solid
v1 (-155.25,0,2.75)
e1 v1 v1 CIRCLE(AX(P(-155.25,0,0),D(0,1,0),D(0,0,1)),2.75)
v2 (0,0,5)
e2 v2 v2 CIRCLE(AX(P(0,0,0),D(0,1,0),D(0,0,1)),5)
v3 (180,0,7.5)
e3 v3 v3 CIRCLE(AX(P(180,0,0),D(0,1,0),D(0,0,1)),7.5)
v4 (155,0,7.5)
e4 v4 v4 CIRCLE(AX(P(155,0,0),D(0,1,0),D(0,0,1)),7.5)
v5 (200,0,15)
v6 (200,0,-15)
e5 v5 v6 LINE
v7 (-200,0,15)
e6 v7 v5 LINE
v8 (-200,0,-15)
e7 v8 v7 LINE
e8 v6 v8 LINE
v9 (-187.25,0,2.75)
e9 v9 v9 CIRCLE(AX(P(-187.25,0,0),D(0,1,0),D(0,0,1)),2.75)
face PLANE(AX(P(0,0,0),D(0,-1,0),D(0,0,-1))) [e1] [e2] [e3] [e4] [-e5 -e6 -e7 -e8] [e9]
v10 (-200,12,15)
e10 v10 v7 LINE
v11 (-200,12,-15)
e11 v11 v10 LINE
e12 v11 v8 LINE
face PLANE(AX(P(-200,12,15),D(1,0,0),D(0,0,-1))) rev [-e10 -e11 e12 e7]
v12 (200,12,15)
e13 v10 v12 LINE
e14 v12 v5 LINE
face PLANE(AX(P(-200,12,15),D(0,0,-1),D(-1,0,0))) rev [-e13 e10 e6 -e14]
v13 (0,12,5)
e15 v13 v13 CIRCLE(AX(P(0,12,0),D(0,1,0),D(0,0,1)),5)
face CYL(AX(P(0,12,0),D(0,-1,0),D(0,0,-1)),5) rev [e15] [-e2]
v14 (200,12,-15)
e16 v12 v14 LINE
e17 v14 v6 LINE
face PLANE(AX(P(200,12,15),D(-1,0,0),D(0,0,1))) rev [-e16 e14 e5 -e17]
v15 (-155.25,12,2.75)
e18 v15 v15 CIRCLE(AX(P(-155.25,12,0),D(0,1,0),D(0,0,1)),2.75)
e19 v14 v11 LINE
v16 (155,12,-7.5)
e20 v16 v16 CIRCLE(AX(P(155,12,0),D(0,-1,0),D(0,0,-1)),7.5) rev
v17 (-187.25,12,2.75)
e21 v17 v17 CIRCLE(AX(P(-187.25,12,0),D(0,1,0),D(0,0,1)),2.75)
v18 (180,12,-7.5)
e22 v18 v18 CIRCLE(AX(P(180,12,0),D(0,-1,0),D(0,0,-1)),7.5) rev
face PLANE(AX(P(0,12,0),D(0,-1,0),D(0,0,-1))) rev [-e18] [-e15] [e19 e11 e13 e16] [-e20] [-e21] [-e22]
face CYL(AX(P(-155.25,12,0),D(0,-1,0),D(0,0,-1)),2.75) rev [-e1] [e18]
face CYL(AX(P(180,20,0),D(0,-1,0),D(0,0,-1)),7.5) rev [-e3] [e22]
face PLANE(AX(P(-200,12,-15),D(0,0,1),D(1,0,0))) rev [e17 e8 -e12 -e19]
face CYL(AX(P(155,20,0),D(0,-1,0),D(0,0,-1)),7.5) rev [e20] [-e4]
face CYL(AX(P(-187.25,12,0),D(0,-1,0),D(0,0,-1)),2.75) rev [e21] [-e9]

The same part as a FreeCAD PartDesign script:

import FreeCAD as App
import Part
import Sketcher

V = App.Vector
Q = App.Units.Quantity

doc = App.newDocument("Part")
body = doc.addObject("PartDesign::Body", "Body")

# Sketch on XZ plane
sketch1 = body.newObject("Sketcher::SketchObject", "Sketch")
sketch1.AttachmentSupport = (doc.getObject("XZ_Plane"), [""])
sketch1.MapMode = "FlatFace"
sketch1.addGeometry([
    Part.LineSegment(V(-200, -15, 0), V(-200, 15, 0)),  # 0
    Part.LineSegment(V(-200, 15, 0), V(200, 15, 0)),  # 1
    Part.LineSegment(V(200, 15, 0), V(200, -15, 0)),  # 2
    Part.LineSegment(V(200, -15, 0), V(-200, -15, 0)),  # 3
    Part.Circle(V(-187.25, 0, 0), V(0, 0, 1), 2.75),  # 4
    Part.Circle(V(-155.25, 0, 0), V(0, 0, 1), 2.75),  # 5
    Part.Circle(V(0, 0, 0), V(0, 0, 1), 5),  # 6
], False)
sketch1.addConstraint([
    Sketcher.Constraint("Coincident", 0, 2, 1, 1),
    Sketcher.Constraint("Coincident", 1, 2, 2, 1),
    Sketcher.Constraint("Coincident", 2, 2, 3, 1),
    Sketcher.Constraint("Coincident", 3, 2, 0, 1),
    Sketcher.Constraint("Vertical", 0),
    Sketcher.Constraint("Horizontal", 1),
    Sketcher.Constraint("Vertical", 2),
    Sketcher.Constraint("Horizontal", 3),
    Sketcher.Constraint("Coincident", 6, 3, -1, 1),
    Sketcher.Constraint("Equal", 4, 5),
    Sketcher.Constraint("Symmetric", 0, 2, 2, 2, -1, 1),
    Sketcher.Constraint("PointOnObject", 4, 3, -1),
    Sketcher.Constraint("PointOnObject", 5, 3, -1),
    Sketcher.Constraint("Diameter", 6, Q("10 mm")),
    Sketcher.Constraint("Diameter", 4, Q("5.5 mm")),
    Sketcher.Constraint("DistanceX", 1, 1, 1, 2, Q("400 mm")),
    Sketcher.Constraint("DistanceY", 0, 1, 0, 2, Q("30 mm")),
    Sketcher.Constraint("DistanceX", 4, 3, 5, 3, Q("32 mm")),
    Sketcher.Constraint("DistanceX", 4, 3, -1, 1, Q("187.25 mm")),
])
pad1 = body.newObject("PartDesign::Pad", "Pad")
pad1.Profile = sketch1
pad1.Length = 12
pad1.Reversed = True

# Sketch on XZ plane
sketch2 = body.newObject("Sketcher::SketchObject", "Sketch001")
sketch2.AttachmentSupport = (doc.getObject("XZ_Plane"), [""])
sketch2.MapMode = "FlatFace"
sketch2.addGeometry([
    Part.Circle(V(155, 0, 0), V(0, 0, 1), 7.5),
    Part.Circle(V(180, 0, 0), V(0, 0, 1), 7.5),
], False)
sketch2.addConstraint([
    Sketcher.Constraint("Equal", 0, 1),
    Sketcher.Constraint("PointOnObject", 0, 3, -1),
    Sketcher.Constraint("PointOnObject", 1, 3, -1),
    Sketcher.Constraint("Diameter", 0, Q("15 mm")),
    Sketcher.Constraint("DistanceX", -1, 1, 0, 3, Q("155 mm")),
    Sketcher.Constraint("DistanceX", -1, 1, 1, 3, Q("180 mm")),
])
pocket1 = body.newObject("PartDesign::Pocket", "Pocket")
pocket1.Profile = sketch2
pocket1.Length = 20

doc.recompute()
